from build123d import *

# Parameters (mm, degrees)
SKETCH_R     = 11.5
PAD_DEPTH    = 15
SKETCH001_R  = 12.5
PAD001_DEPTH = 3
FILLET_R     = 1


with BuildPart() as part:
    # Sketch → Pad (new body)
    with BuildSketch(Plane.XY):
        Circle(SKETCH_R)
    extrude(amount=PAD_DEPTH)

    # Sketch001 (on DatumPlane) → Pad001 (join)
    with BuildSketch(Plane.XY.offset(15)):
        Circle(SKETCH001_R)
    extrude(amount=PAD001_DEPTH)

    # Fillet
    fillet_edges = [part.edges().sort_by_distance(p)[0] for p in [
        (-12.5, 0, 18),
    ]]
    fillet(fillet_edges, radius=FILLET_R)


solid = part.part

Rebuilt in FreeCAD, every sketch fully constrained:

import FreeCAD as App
import Part
import Sketcher
from FreeCAD import Vector
Q = App.Units.Quantity


def edges_at(feature, points):
    """Names of the edges that pass closest to the given points."""
    edges = feature.Shape.Edges
    near = lambda p: min(range(len(edges)), key=lambda i: edges[i].distToShape(Part.Vertex(*p))[0])
    return sorted({f"Edge{near(p) + 1}" for p in points})

doc = App.newDocument("Part")
body = doc.addObject("PartDesign::Body", "Body")

# Sketch on XY plane
sketch1 = doc.addObject("Sketcher::SketchObject", "Sketch")
body.addObject(sketch1)
sketch1.AttachmentSupport = (doc.XY_Plane, [""])
sketch1.MapMode = "FlatFace"
sketch1.addGeometry(Part.Circle(Vector(0, 0, 0), Vector(0, 0, 1), 11.5), False)
sketch1.addConstraint([
    Sketcher.Constraint("Coincident", 0, 3, -1, 1),
    Sketcher.Constraint("Diameter", 0, Q("23 mm")),
])
pad1 = doc.addObject("PartDesign::Pad", "Pad")
body.addObject(pad1)
pad1.Profile = sketch1
pad1.Length = 15

# Sketch on XY plane
sketch2 = doc.addObject("Sketcher::SketchObject", "Sketch001")
body.addObject(sketch2)
sketch2.AttachmentSupport = (doc.XY_Plane, [""])
sketch2.MapMode = "FlatFace"
sketch2.AttachmentOffset = App.Placement(Vector(0, 0, 15), App.Rotation())
sketch2.addGeometry(Part.Circle(Vector(0, 0, 0), Vector(0, 0, 1), 12.5), False)
sketch2.addConstraint([
    Sketcher.Constraint("Coincident", 0, 3, -1, 1),
    Sketcher.Constraint("Diameter", 0, Q("25 mm")),
])
pad2 = doc.addObject("PartDesign::Pad", "Pad001")
body.addObject(pad2)
pad2.Profile = sketch2
pad2.Length = 3
doc.recompute()

fillet = doc.addObject("PartDesign::Fillet", "Fillet")
body.addObject(fillet)
fillet.Base = (pad2, edges_at(pad2, [(-12.5, 0, 18)]))
fillet.Radius = 1

doc.recompute()
